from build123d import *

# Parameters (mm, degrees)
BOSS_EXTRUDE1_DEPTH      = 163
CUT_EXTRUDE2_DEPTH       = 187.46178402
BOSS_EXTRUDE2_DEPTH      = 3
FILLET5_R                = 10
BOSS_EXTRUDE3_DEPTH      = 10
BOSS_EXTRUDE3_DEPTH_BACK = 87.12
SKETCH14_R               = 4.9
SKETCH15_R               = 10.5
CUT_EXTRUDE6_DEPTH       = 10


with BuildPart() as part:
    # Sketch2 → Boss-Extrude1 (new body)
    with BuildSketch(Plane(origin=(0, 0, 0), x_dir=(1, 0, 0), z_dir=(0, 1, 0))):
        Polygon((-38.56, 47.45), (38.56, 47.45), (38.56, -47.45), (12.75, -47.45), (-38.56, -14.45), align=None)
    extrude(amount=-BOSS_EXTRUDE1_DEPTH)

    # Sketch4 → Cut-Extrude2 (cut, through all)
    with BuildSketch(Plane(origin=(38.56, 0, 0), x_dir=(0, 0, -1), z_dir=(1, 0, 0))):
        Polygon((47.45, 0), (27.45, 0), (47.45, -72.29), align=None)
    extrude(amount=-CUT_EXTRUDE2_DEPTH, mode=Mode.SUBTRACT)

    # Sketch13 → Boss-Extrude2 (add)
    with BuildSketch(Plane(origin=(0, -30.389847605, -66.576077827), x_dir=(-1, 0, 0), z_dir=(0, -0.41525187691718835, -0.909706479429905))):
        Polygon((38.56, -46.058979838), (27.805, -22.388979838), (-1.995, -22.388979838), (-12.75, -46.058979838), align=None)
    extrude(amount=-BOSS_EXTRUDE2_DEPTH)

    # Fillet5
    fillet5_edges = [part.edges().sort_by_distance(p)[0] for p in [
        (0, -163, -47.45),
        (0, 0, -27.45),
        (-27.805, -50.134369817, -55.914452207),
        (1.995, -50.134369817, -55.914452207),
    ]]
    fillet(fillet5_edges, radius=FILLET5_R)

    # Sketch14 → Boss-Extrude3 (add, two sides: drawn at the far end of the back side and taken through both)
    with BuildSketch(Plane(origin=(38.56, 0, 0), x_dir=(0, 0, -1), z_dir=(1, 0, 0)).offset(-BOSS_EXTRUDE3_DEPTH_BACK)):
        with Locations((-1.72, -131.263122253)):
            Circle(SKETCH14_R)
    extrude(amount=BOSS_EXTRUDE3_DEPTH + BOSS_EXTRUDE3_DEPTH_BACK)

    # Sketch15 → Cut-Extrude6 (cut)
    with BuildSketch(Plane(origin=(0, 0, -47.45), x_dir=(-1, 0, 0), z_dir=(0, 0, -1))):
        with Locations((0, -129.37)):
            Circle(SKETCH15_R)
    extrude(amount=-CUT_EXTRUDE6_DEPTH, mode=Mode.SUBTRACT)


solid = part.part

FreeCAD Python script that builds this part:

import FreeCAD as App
import Part
import Sketcher

V = App.Vector
Q = App.Units.Quantity


def edges_at(feature, points):
    """Names of the edges that pass closest to the given points."""
    edges = feature.Shape.Edges
    near = lambda p: min(range(len(edges)), key=lambda i: edges[i].distToShape(Part.Vertex(*p))[0])
    return sorted({f"Edge{near(p) + 1}" for p in points})

doc = App.newDocument("Part")
body = doc.addObject("PartDesign::Body", "Body")

# Sketch on XZ plane
sketch1 = body.newObject("Sketcher::SketchObject", "Sketch")
sketch1.AttachmentSupport = (doc.getObject("XZ_Plane"), [""])
sketch1.MapMode = "FlatFace"
sketch1.addGeometry([
    Part.LineSegment(V(39, -47, 0), V(-39, -47, 0)),  # 0
    Part.LineSegment(V(-39, -47, 0), V(-39, 14, 0)),  # 1
    Part.LineSegment(V(-39, 14, 0), V(13, 47, 0)),  # 2
    Part.LineSegment(V(13, 47, 0), V(39, 47, 0)),  # 3
    Part.LineSegment(V(39, 47, 0), V(39, -47, 0)),  # 4
], False)
sketch1.addConstraint([
    Sketcher.Constraint("Coincident", 0, 2, 1, 1),
    Sketcher.Constraint("Coincident", 1, 2, 2, 1),
    Sketcher.Constraint("Coincident", 2, 2, 3, 1),
    Sketcher.Constraint("Coincident", 3, 2, 4, 1),
    Sketcher.Constraint("Coincident", 4, 2, 0, 1),
    Sketcher.Constraint("Horizontal", 0),
    Sketcher.Constraint("Vertical", 1),
    Sketcher.Constraint("Horizontal", 3),
    Sketcher.Constraint("Vertical", 4),
    Sketcher.Constraint("Symmetric", 0, 2, 3, 2, -1, 1),
    Sketcher.Constraint("DistanceY", 1, 1, 1, 2, Q("61.9 mm")),
    Sketcher.Constraint("DistanceY", 4, 2, 4, 1, Q("94.9 mm")),
    Sketcher.Constraint("DistanceX", 0, 2, 0, 1, Q("77.12 mm")),
    Sketcher.Constraint("DistanceX", 3, 1, 3, 2, Q("25.81 mm")),
])
pad1 = body.newObject("PartDesign::Pad", "Pad")
pad1.Profile = sketch1
pad1.Length = 163

# Sketch on YZ plane
sketch2 = body.newObject("Sketcher::SketchObject", "Sketch001")
sketch2.AttachmentSupport = (doc.getObject("YZ_Plane"), [""])
sketch2.MapMode = "FlatFace"
sketch2.AttachmentOffset = App.Placement(V(0, 0, 38.56), App.Rotation())
sketch2.addGeometry([
    Part.LineSegment(V(0, -47, 0), V(0, -27, 0)),
    Part.LineSegment(V(0, -27, 0), V(-72, -47, 0)),
    Part.LineSegment(V(-72, -47, 0), V(0, -47, 0)),
], False)
sketch2.addConstraint([
    Sketcher.Constraint("Coincident", 0, 2, 1, 1),
    Sketcher.Constraint("Coincident", 1, 2, 2, 1),
    Sketcher.Constraint("Coincident", 2, 2, 0, 1),
    Sketcher.Constraint("Vertical", 0),
    Sketcher.Constraint("Horizontal", 2),
    Sketcher.Constraint("PointOnObject", 0, 2, -2),
    Sketcher.Constraint("DistanceY", 0, 1, 0, 2, Q("20 mm")),
    Sketcher.Constraint("DistanceX", 2, 1, 2, 2, Q("72.29 mm")),
    Sketcher.Constraint("DistanceY", 0, 2, -1, 1, Q("27.45 mm")),
])
pocket1 = body.newObject("PartDesign::Pocket", "Pocket")
pocket1.Profile = sketch2
pocket1.Type = "ThroughAll"

# Sketch on an angled plane
sketch3 = body.newObject("Sketcher::SketchObject", "Sketch002")
sketch3.Placement = App.Placement(V(0, -30.389848, -66.576078), App.Rotation(V(-1, 0, 0), V(0, 0.909706479, -0.415251877), V(0, -0.415251877, -0.909706479), "ZXY"))
sketch3.addGeometry([
    Part.LineSegment(V(39, -46, 0), V(28, -22, 0)),
    Part.LineSegment(V(28, -22, 0), V(-2, -22, 0)),
    Part.LineSegment(V(-2, -22, 0), V(-13, -46, 0)),
    Part.LineSegment(V(-13, -46, 0), V(39, -46, 0)),
], False)
sketch3.addConstraint([
    Sketcher.Constraint("Coincident", 0, 2, 1, 1),
    Sketcher.Constraint("Coincident", 1, 2, 2, 1),
    Sketcher.Constraint("Coincident", 2, 2, 3, 1),
    Sketcher.Constraint("Coincident", 3, 2, 0, 1),
    Sketcher.Constraint("Horizontal", 1),
    Sketcher.Constraint("Horizontal", 3),
    Sketcher.Constraint("Equal", 0, 2),
    Sketcher.Constraint("DistanceX", 1, 2, 1, 1, Q("29.8 mm")),
    Sketcher.Constraint("DistanceX", 3, 1, 3, 2, Q("51.31 mm")),
    Sketcher.Constraint("DistanceX", 2, 2, -1, 1, Q("12.75 mm")),
    Sketcher.Constraint("DistanceY", 2, 2, 1, 2, Q("23.67 mm")),
    Sketcher.Constraint("DistanceY", 0, 2, -1, 1, Q("22.38898 mm")),
])
pad2 = body.newObject("PartDesign::Pad", "Pad001")
pad2.Profile = sketch3
pad2.Length = 3
pad2.Reversed = True
doc.recompute()

fillet = body.newObject("PartDesign::Fillet", "Fillet")
fillet.Base = (pad2, edges_at(pad2, [
    (0, -163, -47.45),
    (0, 0, -27.45),
    (-27.805, -50.134, -55.914),
    (1.995, -50.134, -55.914),
]))
fillet.Radius = 10

# Sketch on YZ plane
sketch4 = body.newObject("Sketcher::SketchObject", "Sketch003")
sketch4.AttachmentSupport = (doc.getObject("YZ_Plane"), [""])
sketch4.MapMode = "FlatFace"
sketch4.AttachmentOffset = App.Placement(V(0, 0, 38.56), App.Rotation())
sketch4.addGeometry(Part.Circle(V(-131.3, 1.7, 0), V(0, 0, 1), 4.9), False)
sketch4.addConstraint([
    Sketcher.Constraint("Diameter", 0, Q("9.8 mm")),
    Sketcher.Constraint("DistanceY", -1, 1, 0, 3, Q("1.72 mm")),
    Sketcher.Constraint("DistanceX", 0, 3, -1, 1, Q("131.263122 mm")),
])
pad3 = body.newObject("PartDesign::Pad", "Pad002")
pad3.Profile = sketch4
pad3.Type = "TwoLengths"
pad3.Length = 10
pad3.Length2 = 87.12

# Sketch on XY plane
sketch5 = body.newObject("Sketcher::SketchObject", "Sketch004")
sketch5.AttachmentSupport = (doc.getObject("XY_Plane"), [""])
sketch5.MapMode = "FlatFace"
sketch5.AttachmentOffset = App.Placement(V(0, 0, -47.45), App.Rotation())
sketch5.addGeometry(Part.Circle(V(0, -129, 0), V(0, 0, 1), 10), False)
sketch5.addConstraint([
    Sketcher.Constraint("PointOnObject", 0, 3, -2),
    Sketcher.Constraint("Diameter", 0, Q("21 mm")),
    Sketcher.Constraint("DistanceY", 0, 3, -1, 1, Q("129.37 mm")),
])
pocket2 = body.newObject("PartDesign::Pocket", "Pocket001")
pocket2.Profile = sketch5
pocket2.Length = 10
pocket2.Reversed = True

doc.recompute()
